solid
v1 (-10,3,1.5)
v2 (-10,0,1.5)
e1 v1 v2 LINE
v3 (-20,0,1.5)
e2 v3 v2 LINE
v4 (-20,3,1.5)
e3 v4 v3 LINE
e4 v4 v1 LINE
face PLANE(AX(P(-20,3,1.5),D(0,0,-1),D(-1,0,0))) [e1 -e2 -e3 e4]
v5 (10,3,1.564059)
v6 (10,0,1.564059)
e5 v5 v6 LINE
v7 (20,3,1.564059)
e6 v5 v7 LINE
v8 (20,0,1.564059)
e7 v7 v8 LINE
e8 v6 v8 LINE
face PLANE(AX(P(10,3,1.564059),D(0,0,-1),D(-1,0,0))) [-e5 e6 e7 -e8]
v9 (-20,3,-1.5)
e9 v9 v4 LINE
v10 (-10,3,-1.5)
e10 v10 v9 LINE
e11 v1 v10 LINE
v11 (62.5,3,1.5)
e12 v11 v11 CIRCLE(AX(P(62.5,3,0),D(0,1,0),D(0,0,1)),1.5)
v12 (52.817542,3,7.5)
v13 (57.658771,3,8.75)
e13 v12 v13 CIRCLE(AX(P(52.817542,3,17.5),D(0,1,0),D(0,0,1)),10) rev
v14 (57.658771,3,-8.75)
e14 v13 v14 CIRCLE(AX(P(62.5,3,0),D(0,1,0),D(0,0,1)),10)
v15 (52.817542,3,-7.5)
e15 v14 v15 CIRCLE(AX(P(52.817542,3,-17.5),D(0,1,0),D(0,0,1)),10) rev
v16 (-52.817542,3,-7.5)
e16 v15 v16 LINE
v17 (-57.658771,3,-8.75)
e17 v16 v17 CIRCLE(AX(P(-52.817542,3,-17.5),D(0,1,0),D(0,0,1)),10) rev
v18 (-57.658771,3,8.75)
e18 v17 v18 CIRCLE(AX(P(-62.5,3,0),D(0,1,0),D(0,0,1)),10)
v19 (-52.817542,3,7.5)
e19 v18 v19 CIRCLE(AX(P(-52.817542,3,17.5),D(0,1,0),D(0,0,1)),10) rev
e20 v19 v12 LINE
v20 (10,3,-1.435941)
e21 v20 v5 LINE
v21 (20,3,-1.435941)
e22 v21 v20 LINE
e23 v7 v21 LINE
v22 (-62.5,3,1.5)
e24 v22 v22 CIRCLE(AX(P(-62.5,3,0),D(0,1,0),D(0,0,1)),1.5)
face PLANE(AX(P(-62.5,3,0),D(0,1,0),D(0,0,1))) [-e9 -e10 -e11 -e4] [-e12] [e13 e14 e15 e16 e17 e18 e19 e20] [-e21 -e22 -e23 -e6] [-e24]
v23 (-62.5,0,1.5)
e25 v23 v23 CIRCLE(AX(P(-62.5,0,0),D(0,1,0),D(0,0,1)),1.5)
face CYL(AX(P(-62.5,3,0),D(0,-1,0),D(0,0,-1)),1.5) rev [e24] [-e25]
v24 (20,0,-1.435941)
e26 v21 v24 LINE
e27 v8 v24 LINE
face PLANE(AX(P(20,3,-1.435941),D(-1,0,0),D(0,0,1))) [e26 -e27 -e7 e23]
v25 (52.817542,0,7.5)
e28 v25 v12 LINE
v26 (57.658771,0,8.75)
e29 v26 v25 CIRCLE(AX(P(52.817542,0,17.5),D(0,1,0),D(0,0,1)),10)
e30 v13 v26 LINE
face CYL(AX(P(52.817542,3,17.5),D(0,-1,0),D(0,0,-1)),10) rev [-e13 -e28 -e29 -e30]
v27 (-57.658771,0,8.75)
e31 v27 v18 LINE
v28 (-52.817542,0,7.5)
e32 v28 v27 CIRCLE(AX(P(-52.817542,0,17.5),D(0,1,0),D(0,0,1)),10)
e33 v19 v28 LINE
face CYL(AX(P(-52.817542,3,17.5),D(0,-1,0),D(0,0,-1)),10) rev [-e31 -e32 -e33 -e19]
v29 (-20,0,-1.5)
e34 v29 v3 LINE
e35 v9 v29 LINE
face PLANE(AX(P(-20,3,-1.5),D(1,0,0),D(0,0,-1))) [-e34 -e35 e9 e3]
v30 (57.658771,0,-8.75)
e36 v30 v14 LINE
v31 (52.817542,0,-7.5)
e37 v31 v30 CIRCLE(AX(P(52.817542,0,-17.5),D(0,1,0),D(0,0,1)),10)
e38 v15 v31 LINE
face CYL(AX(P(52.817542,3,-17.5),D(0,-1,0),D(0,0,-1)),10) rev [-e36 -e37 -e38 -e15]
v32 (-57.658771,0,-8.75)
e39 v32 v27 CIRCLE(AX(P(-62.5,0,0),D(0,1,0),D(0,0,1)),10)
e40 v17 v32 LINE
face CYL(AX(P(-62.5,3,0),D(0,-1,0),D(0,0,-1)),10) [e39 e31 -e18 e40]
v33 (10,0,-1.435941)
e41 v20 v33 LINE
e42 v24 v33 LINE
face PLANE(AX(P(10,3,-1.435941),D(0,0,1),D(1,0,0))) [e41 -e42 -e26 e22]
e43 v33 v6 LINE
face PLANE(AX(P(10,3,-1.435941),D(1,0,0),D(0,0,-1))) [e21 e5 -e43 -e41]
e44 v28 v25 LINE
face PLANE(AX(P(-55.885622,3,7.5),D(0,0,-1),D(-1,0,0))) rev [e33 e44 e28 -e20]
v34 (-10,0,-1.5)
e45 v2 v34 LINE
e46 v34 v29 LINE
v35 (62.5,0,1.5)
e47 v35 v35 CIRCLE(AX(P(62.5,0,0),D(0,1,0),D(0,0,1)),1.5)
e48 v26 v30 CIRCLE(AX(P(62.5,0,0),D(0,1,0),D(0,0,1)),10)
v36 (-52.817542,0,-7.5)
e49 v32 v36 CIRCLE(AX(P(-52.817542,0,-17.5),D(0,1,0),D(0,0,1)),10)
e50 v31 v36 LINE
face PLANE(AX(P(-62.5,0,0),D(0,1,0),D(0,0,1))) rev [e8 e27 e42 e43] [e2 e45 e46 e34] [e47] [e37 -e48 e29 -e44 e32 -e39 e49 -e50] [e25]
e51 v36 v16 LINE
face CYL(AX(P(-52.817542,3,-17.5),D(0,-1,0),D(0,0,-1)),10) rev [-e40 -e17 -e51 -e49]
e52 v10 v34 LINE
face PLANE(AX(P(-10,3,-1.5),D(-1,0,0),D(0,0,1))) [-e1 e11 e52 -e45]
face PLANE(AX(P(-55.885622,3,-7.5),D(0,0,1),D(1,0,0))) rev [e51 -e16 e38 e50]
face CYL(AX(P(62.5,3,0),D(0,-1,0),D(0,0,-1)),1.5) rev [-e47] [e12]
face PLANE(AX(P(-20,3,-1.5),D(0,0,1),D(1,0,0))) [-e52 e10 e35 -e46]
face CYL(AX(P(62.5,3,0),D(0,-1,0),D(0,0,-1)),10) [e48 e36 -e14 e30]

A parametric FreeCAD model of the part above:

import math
import FreeCAD as App
import Part
import Sketcher
from FreeCAD import Vector
Q = App.Units.Quantity


def edges_at(feature, points):
    """Names of the edges that pass closest to the given points."""
    edges = feature.Shape.Edges
    near = lambda p: min(range(len(edges)), key=lambda i: edges[i].distToShape(Part.Vertex(*p))[0])
    return sorted({f"Edge{near(p) + 1}" for p in points})

doc = App.newDocument("Part")
body = doc.addObject("PartDesign::Body", "Body")

# Sketch on XZ plane
sketch1 = doc.addObject("Sketcher::SketchObject", "Sketch")
body.addObject(sketch1)
sketch1.AttachmentSupport = (doc.XZ_Plane, [""])
sketch1.MapMode = "FlatFace"
sketch1.addGeometry(Part.LineSegment(Vector(-55.885622, 7.5, 0), Vector(55.885622, 7.5, 0)), False)
sketch1.addGeometry(Part.ArcOfCircle(Part.Circle(Vector(62.5, 0, 0), Vector(0, 0, 1), 10), math.radians(-131.409622), math.radians(131.409622)), False)
sketch1.addGeometry(Part.LineSegment(Vector(55.885622, -7.5, 0), Vector(-55.885622, -7.5, 0)), False)
sketch1.addGeometry(Part.ArcOfCircle(Part.Circle(Vector(-62.5, 0, 0), Vector(0, 0, 1), 10), math.radians(48.590378), math.radians(311.409622)), False)
sketch1.addGeometry(Part.LineSegment(Vector(20, 1.564059, 0), Vector(10, 1.564059, 0)), False)
sketch1.addGeometry(Part.LineSegment(Vector(10, 1.564059, 0), Vector(10, -1.435941, 0)), False)
sketch1.addGeometry(Part.LineSegment(Vector(10, -1.435941, 0), Vector(20, -1.435941, 0)), False)
sketch1.addGeometry(Part.LineSegment(Vector(20, -1.435941, 0), Vector(20, 1.564059, 0)), False)
sketch1.addGeometry(Part.Circle(Vector(-62.5, 0, 0), Vector(0, 0, 1), 1.5), False)
sketch1.addGeometry(Part.LineSegment(Vector(-10, 1.5, 0), Vector(-20, 1.5, 0)), False)
sketch1.addGeometry(Part.LineSegment(Vector(-20, 1.5, 0), Vector(-20, -1.5, 0)), False)
sketch1.addGeometry(Part.LineSegment(Vector(-20, -1.5, 0), Vector(-10, -1.5, 0)), False)
sketch1.addGeometry(Part.LineSegment(Vector(-10, -1.5, 0), Vector(-10, 1.5, 0)), False)
sketch1.addGeometry(Part.Circle(Vector(62.5, 0, 0), Vector(0, 0, 1), 1.5), False)
sketch1.addConstraint(Sketcher.Constraint("Coincident", 0, 2, 1, 2))
sketch1.addConstraint(Sketcher.Constraint("Coincident", 1, 1, 2, 1))
sketch1.addConstraint(Sketcher.Constraint("Coincident", 2, 2, 3, 2))
sketch1.addConstraint(Sketcher.Constraint("Coincident", 3, 1, 0, 1))
sketch1.addConstraint(Sketcher.Constraint("Coincident", 4, 2, 5, 1))
sketch1.addConstraint(Sketcher.Constraint("Coincident", 5, 2, 6, 1))
sketch1.addConstraint(Sketcher.Constraint("Coincident", 6, 2, 7, 1))
sketch1.addConstraint(Sketcher.Constraint("Coincident", 7, 2, 4, 1))
sketch1.addConstraint(Sketcher.Constraint("Coincident", 9, 2, 10, 1))
sketch1.addConstraint(Sketcher.Constraint("Coincident", 10, 2, 11, 1))
sketch1.addConstraint(Sketcher.Constraint("Coincident", 11, 2, 12, 1))
sketch1.addConstraint(Sketcher.Constraint("Coincident", 12, 2, 9, 1))
sketch1.addConstraint(Sketcher.Constraint("Horizontal", 0))
sketch1.addConstraint(Sketcher.Constraint("Horizontal", 2))
sketch1.addConstraint(Sketcher.Constraint("Horizontal", 4))
sketch1.addConstraint(Sketcher.Constraint("Vertical", 5))
sketch1.addConstraint(Sketcher.Constraint("Horizontal", 6))
sketch1.addConstraint(Sketcher.Constraint("Vertical", 7))
sketch1.addConstraint(Sketcher.Constraint("Horizontal", 9))
sketch1.addConstraint(Sketcher.Constraint("Vertical", 10))
sketch1.addConstraint(Sketcher.Constraint("Horizontal", 11))
sketch1.addConstraint(Sketcher.Constraint("Vertical", 12))
sketch1.addConstraint(Sketcher.Constraint("Coincident", 8, 3, 3, 3))
sketch1.addConstraint(Sketcher.Constraint("Coincident", 13, 3, 1, 3))
sketch1.addConstraint(Sketcher.Constraint("Equal", 1, 3))
sketch1.addConstraint(Sketcher.Constraint("Equal", 8, 13))
sketch1.addConstraint(Sketcher.Constraint("Symmetric", 1, 3, 3, 3, -1, 1))
sketch1.addConstraint(Sketcher.Constraint("Symmetric", 0, 2, 1, 1, -1))
sketch1.addConstraint(Sketcher.Constraint("Equal", 6, 9))
sketch1.addConstraint(Sketcher.Constraint("Equal", 7, 10))
sketch1.addConstraint(Sketcher.Constraint("Diameter", 8, Q("3 mm")))
sketch1.addConstraint(Sketcher.Constraint("Radius", 1, Q("10 mm")))
sketch1.addConstraint(Sketcher.Constraint("DistanceX", 4, 2, 4, 1, Q("10 mm")))
sketch1.addConstraint(Sketcher.Constraint("DistanceY", 5, 2, 5, 1, Q("3 mm")))
sketch1.addConstraint(Sketcher.Constraint("DistanceX", -1, 1, 4, 2, Q("10 mm")))
sketch1.addConstraint(Sketcher.Constraint("DistanceX", 9, 2, -1, 1, Q("20 mm")))
sketch1.addConstraint(Sketcher.Constraint("DistanceX", 3, 3, 1, 3, Q("125 mm")))
sketch1.addConstraint(Sketcher.Constraint("DistanceY", 1, 1, 0, 2, Q("15 mm")))
sketch1.addConstraint(Sketcher.Constraint("DistanceY", 9, 2, 3, 1, Q("6 mm")))
sketch1.addConstraint(Sketcher.Constraint("DistanceY", -1, 1, 4, 2, Q("1.564059 mm")))
pad1 = doc.addObject("PartDesign::Pad", "Pad")
body.addObject(pad1)
pad1.Profile = sketch1
pad1.Length = 3
pad1.Reversed = True
doc.recompute()

fillet = doc.addObject("PartDesign::Fillet", "Fillet")
body.addObject(fillet)
fillet.Base = (pad1, edges_at(pad1, [
    (-55.886, 1.5, -7.5),
    (55.886, 1.5, -7.5),
    (55.886, 1.5, 7.5),
    (-55.886, 1.5, 7.5),
]))
fillet.Radius = 10

doc.recompute()
